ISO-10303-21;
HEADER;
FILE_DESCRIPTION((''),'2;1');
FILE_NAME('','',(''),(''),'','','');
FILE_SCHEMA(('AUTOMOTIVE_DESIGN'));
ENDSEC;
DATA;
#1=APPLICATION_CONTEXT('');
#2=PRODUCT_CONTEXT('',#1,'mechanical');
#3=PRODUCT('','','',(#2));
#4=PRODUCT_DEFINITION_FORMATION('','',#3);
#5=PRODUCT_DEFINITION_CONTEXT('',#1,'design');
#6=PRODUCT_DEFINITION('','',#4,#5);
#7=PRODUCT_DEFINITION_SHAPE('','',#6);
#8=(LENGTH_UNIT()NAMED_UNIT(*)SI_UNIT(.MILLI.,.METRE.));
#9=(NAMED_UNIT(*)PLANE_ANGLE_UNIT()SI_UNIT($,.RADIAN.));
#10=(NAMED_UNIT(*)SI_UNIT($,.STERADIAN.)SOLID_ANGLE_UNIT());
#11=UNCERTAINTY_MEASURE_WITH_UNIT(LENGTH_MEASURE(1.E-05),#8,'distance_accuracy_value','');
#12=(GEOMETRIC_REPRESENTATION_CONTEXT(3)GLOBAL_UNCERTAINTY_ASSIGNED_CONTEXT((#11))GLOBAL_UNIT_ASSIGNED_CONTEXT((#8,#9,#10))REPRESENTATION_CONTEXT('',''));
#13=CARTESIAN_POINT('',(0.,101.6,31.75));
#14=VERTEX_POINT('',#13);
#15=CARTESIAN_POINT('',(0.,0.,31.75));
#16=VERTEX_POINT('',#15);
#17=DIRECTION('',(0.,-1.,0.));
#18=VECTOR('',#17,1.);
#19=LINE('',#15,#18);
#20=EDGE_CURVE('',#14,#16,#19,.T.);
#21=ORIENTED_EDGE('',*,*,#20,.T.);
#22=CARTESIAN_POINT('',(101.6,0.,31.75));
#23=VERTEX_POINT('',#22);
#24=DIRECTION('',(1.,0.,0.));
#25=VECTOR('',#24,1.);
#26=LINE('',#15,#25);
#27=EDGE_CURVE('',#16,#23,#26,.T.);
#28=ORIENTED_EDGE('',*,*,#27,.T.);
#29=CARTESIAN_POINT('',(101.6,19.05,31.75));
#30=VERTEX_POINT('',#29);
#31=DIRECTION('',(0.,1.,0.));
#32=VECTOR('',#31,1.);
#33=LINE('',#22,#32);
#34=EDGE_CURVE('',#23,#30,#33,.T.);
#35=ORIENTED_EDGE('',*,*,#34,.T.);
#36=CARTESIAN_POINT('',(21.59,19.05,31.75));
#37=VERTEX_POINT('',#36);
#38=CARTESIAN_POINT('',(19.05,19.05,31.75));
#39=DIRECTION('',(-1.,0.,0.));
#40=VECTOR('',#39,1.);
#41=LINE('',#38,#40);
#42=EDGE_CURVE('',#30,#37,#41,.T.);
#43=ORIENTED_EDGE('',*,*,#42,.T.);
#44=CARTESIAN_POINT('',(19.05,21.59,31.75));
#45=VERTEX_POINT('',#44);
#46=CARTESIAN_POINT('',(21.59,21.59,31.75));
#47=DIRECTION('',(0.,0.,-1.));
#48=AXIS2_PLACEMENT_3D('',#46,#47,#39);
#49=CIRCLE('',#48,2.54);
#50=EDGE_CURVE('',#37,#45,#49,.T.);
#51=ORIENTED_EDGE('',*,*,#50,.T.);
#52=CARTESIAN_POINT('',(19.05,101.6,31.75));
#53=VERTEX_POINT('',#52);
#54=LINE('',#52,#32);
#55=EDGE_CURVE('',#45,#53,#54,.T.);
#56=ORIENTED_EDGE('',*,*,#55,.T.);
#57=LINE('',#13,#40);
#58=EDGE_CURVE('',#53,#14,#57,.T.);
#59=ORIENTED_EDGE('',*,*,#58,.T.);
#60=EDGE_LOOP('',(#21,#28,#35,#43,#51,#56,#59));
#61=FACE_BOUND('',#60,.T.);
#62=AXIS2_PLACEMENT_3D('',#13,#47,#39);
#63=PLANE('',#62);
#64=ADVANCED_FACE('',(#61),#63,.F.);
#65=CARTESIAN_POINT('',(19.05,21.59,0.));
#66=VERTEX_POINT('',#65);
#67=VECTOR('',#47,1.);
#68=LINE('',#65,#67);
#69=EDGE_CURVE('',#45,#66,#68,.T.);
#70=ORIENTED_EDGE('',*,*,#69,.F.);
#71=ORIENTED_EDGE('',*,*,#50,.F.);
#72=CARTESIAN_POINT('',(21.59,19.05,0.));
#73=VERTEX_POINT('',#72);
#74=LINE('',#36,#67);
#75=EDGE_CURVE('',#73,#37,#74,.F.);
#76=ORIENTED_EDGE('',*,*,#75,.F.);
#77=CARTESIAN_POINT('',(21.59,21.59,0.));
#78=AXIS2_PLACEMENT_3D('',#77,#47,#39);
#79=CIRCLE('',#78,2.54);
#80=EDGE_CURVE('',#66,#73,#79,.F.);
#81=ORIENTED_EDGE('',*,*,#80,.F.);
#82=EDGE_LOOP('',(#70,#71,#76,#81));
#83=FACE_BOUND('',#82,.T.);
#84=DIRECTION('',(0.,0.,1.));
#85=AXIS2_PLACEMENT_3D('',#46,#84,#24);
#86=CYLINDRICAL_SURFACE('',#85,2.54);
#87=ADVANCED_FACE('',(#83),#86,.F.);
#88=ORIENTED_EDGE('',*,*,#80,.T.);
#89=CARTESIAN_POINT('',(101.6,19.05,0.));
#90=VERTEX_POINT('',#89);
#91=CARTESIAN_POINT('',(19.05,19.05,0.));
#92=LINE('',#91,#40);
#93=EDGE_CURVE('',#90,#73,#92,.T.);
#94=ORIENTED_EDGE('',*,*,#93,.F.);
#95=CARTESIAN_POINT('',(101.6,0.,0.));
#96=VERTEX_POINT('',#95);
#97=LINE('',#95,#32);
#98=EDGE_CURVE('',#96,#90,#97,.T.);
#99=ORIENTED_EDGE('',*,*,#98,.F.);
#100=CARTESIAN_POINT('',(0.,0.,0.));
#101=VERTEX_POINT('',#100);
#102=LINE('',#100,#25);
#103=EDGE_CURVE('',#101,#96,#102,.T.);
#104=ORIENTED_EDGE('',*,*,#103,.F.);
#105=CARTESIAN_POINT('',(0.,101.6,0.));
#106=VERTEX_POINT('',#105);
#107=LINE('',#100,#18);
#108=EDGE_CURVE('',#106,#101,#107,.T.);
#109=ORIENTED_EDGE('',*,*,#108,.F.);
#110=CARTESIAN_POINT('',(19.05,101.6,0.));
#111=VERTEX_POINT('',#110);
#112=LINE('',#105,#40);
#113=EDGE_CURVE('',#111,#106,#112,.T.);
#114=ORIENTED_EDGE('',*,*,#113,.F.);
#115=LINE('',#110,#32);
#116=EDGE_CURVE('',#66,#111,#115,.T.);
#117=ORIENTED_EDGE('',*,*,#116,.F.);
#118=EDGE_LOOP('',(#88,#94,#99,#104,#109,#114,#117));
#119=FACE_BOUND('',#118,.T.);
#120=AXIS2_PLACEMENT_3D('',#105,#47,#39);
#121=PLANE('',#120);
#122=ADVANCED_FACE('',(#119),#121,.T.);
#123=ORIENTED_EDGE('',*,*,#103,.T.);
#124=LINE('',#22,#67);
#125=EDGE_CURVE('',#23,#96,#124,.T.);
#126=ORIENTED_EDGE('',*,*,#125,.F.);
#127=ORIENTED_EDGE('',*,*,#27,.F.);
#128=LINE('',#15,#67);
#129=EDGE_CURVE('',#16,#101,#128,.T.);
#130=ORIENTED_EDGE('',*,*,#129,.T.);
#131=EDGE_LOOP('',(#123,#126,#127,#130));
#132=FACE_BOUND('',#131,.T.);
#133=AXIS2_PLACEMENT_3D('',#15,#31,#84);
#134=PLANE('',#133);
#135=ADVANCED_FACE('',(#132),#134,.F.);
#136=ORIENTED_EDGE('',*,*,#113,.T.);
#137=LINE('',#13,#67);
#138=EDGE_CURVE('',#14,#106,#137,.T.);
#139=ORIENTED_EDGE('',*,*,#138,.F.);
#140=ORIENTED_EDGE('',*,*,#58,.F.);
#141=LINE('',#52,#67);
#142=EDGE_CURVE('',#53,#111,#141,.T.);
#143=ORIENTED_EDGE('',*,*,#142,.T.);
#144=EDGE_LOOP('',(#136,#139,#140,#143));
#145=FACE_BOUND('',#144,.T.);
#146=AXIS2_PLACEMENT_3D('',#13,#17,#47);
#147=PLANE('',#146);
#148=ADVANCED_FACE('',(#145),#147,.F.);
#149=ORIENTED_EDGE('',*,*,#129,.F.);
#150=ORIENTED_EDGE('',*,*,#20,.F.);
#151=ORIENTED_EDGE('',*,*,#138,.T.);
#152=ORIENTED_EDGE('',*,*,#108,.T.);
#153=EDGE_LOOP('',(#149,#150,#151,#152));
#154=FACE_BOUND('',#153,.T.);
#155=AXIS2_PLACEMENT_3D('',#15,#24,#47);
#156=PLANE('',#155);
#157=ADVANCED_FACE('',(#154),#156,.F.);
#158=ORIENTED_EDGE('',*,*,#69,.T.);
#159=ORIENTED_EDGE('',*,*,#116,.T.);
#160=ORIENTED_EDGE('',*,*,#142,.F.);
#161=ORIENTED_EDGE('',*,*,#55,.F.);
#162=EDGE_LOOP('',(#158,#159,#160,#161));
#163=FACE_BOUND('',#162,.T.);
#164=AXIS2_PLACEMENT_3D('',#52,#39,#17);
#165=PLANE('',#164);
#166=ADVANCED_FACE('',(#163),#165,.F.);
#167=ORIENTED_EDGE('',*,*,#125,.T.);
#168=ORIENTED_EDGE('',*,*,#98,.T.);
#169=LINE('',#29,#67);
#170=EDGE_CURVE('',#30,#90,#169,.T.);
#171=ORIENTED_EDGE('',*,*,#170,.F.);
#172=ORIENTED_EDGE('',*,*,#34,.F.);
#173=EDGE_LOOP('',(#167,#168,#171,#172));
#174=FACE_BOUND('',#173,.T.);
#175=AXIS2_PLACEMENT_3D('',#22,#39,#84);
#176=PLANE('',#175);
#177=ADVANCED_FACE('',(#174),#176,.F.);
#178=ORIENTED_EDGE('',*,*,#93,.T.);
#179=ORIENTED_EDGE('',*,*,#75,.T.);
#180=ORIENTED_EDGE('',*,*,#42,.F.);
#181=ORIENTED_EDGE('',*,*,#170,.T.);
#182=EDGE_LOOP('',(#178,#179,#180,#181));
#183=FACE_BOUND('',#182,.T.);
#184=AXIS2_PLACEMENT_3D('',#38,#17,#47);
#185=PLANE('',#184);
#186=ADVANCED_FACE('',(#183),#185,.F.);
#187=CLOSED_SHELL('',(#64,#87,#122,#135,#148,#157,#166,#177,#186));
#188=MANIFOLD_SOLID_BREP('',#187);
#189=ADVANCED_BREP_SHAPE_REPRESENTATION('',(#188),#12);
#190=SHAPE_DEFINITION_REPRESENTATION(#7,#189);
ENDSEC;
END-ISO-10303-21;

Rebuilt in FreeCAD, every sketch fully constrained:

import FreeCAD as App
import Part
import Sketcher

V = App.Vector
Q = App.Units.Quantity


def edges_at(feature, points):
    """Names of the edges that pass closest to the given points."""
    edges = feature.Shape.Edges
    near = lambda p: min(range(len(edges)), key=lambda i: edges[i].distToShape(Part.Vertex(*p))[0])
    return sorted({f"Edge{near(p) + 1}" for p in points})


def add_polygon(sketch, points):
    """Adds a closed chain of lines whose ends are joined by coincident constraints."""
    first, n = sketch.GeometryCount, len(points)
    for a, b in zip(points, points[1:] + points[:1]):
        sketch.addGeometry(Part.LineSegment(App.Vector(*a, 0), App.Vector(*b, 0)), False)
    for i in range(n):
        sketch.addConstraint(Sketcher.Constraint("Coincident", first + i, 2, first + (i + 1) % n, 1))

doc = App.newDocument("Part")
body = doc.addObject("PartDesign::Body", "Body")

# Sketch on XY plane
sketch1 = body.newObject("Sketcher::SketchObject", "Sketch")
sketch1.AttachmentSupport = (doc.getObject("XY_Plane"), [""])
sketch1.MapMode = "FlatFace"
add_polygon(sketch1, [(19.05, 19.05), (19.05, 101.6), (0, 101.6), (0, 0), (101.6, 0), (101.6, 19.05)])  # lines 0-5
sketch1.addConstraint(Sketcher.Constraint("Vertical", 0))
sketch1.addConstraint(Sketcher.Constraint("Horizontal", 1))
sketch1.addConstraint(Sketcher.Constraint("Vertical", 2))
sketch1.addConstraint(Sketcher.Constraint("Horizontal", 3))
sketch1.addConstraint(Sketcher.Constraint("Vertical", 4))
sketch1.addConstraint(Sketcher.Constraint("Horizontal", 5))
sketch1.addConstraint(Sketcher.Constraint("Coincident", 2, 2, -1, 1))
sketch1.addConstraint(Sketcher.Constraint("Equal", 5, 0))
sketch1.addConstraint(Sketcher.Constraint("Equal", 3, 2))
sketch1.addConstraint(Sketcher.Constraint("DistanceX", 3, 1, 3, 2, Q("4 in")))
sketch1.addConstraint(Sketcher.Constraint("DistanceX", 1, 2, 1, 1, Q("0.75 in")))
pad1 = body.newObject("PartDesign::Pad", "Pad")
pad1.Profile = sketch1
pad1.Length = Q("1.25 in")
doc.recompute()

fillet = body.newObject("PartDesign::Fillet", "Fillet")
fillet.Base = (pad1, edges_at(pad1, [(19.05, 19.05, 15.875)]))
fillet.Radius = Q("0.1 in")

doc.recompute()
